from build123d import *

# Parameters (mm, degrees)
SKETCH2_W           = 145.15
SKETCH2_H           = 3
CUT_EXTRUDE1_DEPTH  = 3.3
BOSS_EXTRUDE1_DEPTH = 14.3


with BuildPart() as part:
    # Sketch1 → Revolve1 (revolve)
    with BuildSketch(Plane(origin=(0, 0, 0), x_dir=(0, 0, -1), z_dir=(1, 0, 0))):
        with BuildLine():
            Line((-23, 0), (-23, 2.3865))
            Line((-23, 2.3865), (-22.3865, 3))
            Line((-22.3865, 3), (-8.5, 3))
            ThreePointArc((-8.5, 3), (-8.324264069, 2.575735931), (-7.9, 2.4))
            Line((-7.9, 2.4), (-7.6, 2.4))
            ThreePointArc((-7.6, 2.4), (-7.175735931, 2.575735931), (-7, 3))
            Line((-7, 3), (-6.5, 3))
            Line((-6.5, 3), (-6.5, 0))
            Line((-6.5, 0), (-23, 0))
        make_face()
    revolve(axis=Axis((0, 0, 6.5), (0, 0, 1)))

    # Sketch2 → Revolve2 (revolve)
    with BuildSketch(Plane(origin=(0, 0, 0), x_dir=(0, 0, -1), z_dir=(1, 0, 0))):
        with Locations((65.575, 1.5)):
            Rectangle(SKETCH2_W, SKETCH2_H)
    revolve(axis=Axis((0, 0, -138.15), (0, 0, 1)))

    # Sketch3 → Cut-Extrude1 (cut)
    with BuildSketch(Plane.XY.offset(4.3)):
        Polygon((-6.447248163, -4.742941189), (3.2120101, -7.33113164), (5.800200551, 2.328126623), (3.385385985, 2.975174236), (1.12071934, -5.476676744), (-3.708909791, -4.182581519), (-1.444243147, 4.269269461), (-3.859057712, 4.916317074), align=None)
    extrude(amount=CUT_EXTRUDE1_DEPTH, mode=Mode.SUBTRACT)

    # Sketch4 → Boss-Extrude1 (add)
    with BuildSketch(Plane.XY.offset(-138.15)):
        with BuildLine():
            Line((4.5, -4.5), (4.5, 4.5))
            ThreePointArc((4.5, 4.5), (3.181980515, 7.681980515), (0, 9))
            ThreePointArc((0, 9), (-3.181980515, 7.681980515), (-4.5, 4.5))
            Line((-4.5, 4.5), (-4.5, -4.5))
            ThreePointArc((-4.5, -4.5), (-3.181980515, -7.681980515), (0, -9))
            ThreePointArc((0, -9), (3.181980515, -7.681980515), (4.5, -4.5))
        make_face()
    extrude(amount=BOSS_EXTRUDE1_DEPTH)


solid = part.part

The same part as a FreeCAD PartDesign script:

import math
import FreeCAD as App
import Part
import Sketcher
from FreeCAD import Vector
Q = App.Units.Quantity


def add_polygon(sketch, points):
    """Adds a closed chain of lines whose ends are joined by coincident constraints."""
    first, n = sketch.GeometryCount, len(points)
    for a, b in zip(points, points[1:] + points[:1]):
        sketch.addGeometry(Part.LineSegment(App.Vector(*a, 0), App.Vector(*b, 0)), False)
    for i in range(n):
        sketch.addConstraint(Sketcher.Constraint("Coincident", first + i, 2, first + (i + 1) % n, 1))

doc = App.newDocument("Part")
body = doc.addObject("PartDesign::Body", "Body")

# Sketch on YZ plane
sketch1 = doc.addObject("Sketcher::SketchObject", "Sketch")
body.addObject(sketch1)
sketch1.AttachmentSupport = (doc.YZ_Plane, [""])
sketch1.MapMode = "FlatFace"
sketch1.addGeometry([
    Part.LineSegment(Vector(2.39, 23, 0), Vector(0, 23, 0)),  # 0
    Part.LineSegment(Vector(0, 23, 0), Vector(0, 6.5, 0)),  # 1
    Part.LineSegment(Vector(0, 6.5, 0), Vector(3, 6.5, 0)),  # 2
    Part.LineSegment(Vector(3, 6.5, 0), Vector(3, 7, 0)),  # 3
    Part.ArcOfCircle(Part.Circle(Vector(3, 7.6, 0), Vector(0, 0, 1), 0.6), math.radians(180), math.radians(270)),  # 4
    Part.LineSegment(Vector(2.4, 7.6, 0), Vector(2.4, 7.9, 0)),  # 5
    Part.ArcOfCircle(Part.Circle(Vector(3, 7.9, 0), Vector(0, 0, 1), 0.6), math.radians(90), math.radians(180)),  # 6
    Part.LineSegment(Vector(3, 8.5, 0), Vector(3, 22.39, 0)),  # 7
    Part.LineSegment(Vector(3, 22.39, 0), Vector(2.39, 23, 0)),  # 8
], False)
sketch1.addConstraint([
    Sketcher.Constraint("Coincident", 0, 2, 1, 1),
    Sketcher.Constraint("Coincident", 1, 2, 2, 1),
    Sketcher.Constraint("Coincident", 2, 2, 3, 1),
    Sketcher.Constraint("Coincident", 3, 2, 4, 2),
    Sketcher.Constraint("Tangent", 4, 1, 5, 1),
    Sketcher.Constraint("Tangent", 5, 2, 6, 2),
    Sketcher.Constraint("Coincident", 6, 1, 7, 1),
    Sketcher.Constraint("Coincident", 7, 2, 8, 1),
    Sketcher.Constraint("Coincident", 8, 2, 0, 1),
    Sketcher.Constraint("Horizontal", 0),
    Sketcher.Constraint("Vertical", 1),
    Sketcher.Constraint("Horizontal", 2),
    Sketcher.Constraint("Vertical", 3),
    Sketcher.Constraint("Vertical", 5),
    Sketcher.Constraint("Vertical", 7),
    Sketcher.Constraint("Equal", 4, 6),
    Sketcher.Constraint("PointOnObject", 0, 2, -2),
    Sketcher.Constraint("Vertical", 6, 3, 2, 2),
    Sketcher.Constraint("Vertical", 3, 2, 6, 1),
    Sketcher.Constraint("Radius", 4, Q("0.6 mm")),
    Sketcher.Constraint("DistanceX", 2, 1, 2, 2, Q("3 mm")),
    Sketcher.Constraint("Angle", 8, Q("135 deg")),
    Sketcher.Constraint("DistanceY", 1, 2, 1, 1, Q("16.5 mm")),
    Sketcher.Constraint("DistanceY", 3, 1, 3, 2, Q("0.5 mm")),
    Sketcher.Constraint("DistanceY", 5, 1, 5, 2, Q("0.3 mm")),
    Sketcher.Constraint("DistanceY", -1, 1, 0, 2, Q("23 mm")),
    Sketcher.Constraint("DistanceX", 0, 2, 0, 1, Q("2.3865 mm")),
])
revolution = doc.addObject("PartDesign::Revolution", "Revolution")
body.addObject(revolution)
revolution.Profile = sketch1
revolution.ReferenceAxis = (sketch1, ["V_Axis"])
revolution.Angle = 360

# Sketch on YZ plane
sketch2 = doc.addObject("Sketcher::SketchObject", "Sketch001")
body.addObject(sketch2)
sketch2.AttachmentSupport = (doc.YZ_Plane, [""])
sketch2.MapMode = "FlatFace"
add_polygon(sketch2, [(3, 7), (0, 7), (0, -138.2), (3, -138.2)])  # lines 0-3
sketch2.addConstraint([
    Sketcher.Constraint("Horizontal", 0),
    Sketcher.Constraint("Vertical", 1),
    Sketcher.Constraint("Horizontal", 2),
    Sketcher.Constraint("Vertical", 3),
    Sketcher.Constraint("PointOnObject", 0, 2, -2),
    Sketcher.Constraint("DistanceX", 0, 2, 0, 1, Q("3 mm")),
    Sketcher.Constraint("DistanceY", -1, 1, 0, 2, Q("7 mm")),
    Sketcher.Constraint("DistanceY", 1, 2, 1, 1, Q("145.15 mm")),
])
revolution2 = doc.addObject("PartDesign::Revolution", "Revolution001")
body.addObject(revolution2)
revolution2.Profile = sketch2
revolution2.ReferenceAxis = (sketch2, ["V_Axis"])
revolution2.Angle = 360

# Sketch on XY plane
sketch3 = doc.addObject("Sketcher::SketchObject", "Sketch002")
body.addObject(sketch3)
sketch3.AttachmentSupport = (doc.XY_Plane, [""])
sketch3.MapMode = "FlatFace"
sketch3.AttachmentOffset = App.Placement(Vector(0, 0, 4.3), App.Rotation())
add_polygon(sketch3, [(-6.4, -4.7), (3.2, -7.3), (5.8, 2.3), (3.4, 3), (1.1, -5.5), (-3.7, -4.2), (-1.4, 4.3), (-3.9, 4.9)])  # lines 0-7
sketch3.addConstraint([
    Sketcher.Constraint("Perpendicular", 0, 1),
    Sketcher.Constraint("Perpendicular", 1, 2),
    Sketcher.Constraint("Perpendicular", 2, 3),
    Sketcher.Constraint("Perpendicular", 3, 4),
    Sketcher.Constraint("Perpendicular", 4, 5),
    Sketcher.Constraint("Perpendicular", 5, 6),
    Sketcher.Constraint("Perpendicular", 6, 7),
    Sketcher.Constraint("Equal", 0, 1),
    Sketcher.Constraint("Equal", 3, 5),
    Sketcher.Constraint("Equal", 2, 6),
    Sketcher.Constraint("Angle", 0, Q("-15 deg")),
    Sketcher.Constraint("Distance", 0, Q("10 mm")),
    Sketcher.Constraint("Distance", 4, Q("5 mm")),
    Sketcher.Constraint("Distance", 3, Q("8.75 mm")),
    Sketcher.Constraint("DistanceX", -1, 1, 1, 2, Q("5.800201 mm")),
    Sketcher.Constraint("DistanceY", 0, 2, -1, 1, Q("7.331132 mm")),
])
pocket1 = doc.addObject("PartDesign::Pocket", "Pocket")
body.addObject(pocket1)
pocket1.Profile = sketch3
pocket1.Length = 3.3
pocket1.Reversed = True

# Sketch on XY plane
sketch4 = doc.addObject("Sketcher::SketchObject", "Sketch003")
body.addObject(sketch4)
sketch4.AttachmentSupport = (doc.XY_Plane, [""])
sketch4.MapMode = "FlatFace"
sketch4.AttachmentOffset = App.Placement(Vector(0, 0, -138.15), App.Rotation())
sketch4.addGeometry([
    Part.LineSegment(Vector(4.5, -4.5, 0), Vector(4.5, 4.5, 0)),  # 0
    Part.ArcOfCircle(Part.Circle(Vector(0, 4.5, 0), Vector(0, 0, 1), 4.5), math.radians(0), math.radians(90)),  # 1
    Part.ArcOfCircle(Part.Circle(Vector(0, 4.5, 0), Vector(0, 0, 1), 4.5), math.radians(90), math.radians(180)),  # 2
    Part.LineSegment(Vector(-4.5, 4.5, 0), Vector(-4.5, -4.5, 0)),  # 3
    Part.ArcOfCircle(Part.Circle(Vector(0, -4.5, 0), Vector(0, 0, 1), 4.5), math.radians(-180), math.radians(-90)),  # 4
    Part.ArcOfCircle(Part.Circle(Vector(0, -4.5, 0), Vector(0, 0, 1), 4.5), math.radians(-90), math.radians(0)),  # 5
], False)
sketch4.addConstraint([
    Sketcher.Constraint("Tangent", 0, 2, 1, 1),
    Sketcher.Constraint("Tangent", 1, 2, 2, 1),
    Sketcher.Constraint("Tangent", 2, 2, 3, 1),
    Sketcher.Constraint("Tangent", 3, 2, 4, 1),
    Sketcher.Constraint("Tangent", 4, 2, 5, 1),
    Sketcher.Constraint("Tangent", 5, 2, 0, 1),
    Sketcher.Constraint("Vertical", 0),
    Sketcher.Constraint("Vertical", 3),
    Sketcher.Constraint("Equal", 1, 2),
    Sketcher.Constraint("Equal", 2, 4),
    Sketcher.Constraint("Symmetric", 1, 3, 4, 3, -1, 1),
    Sketcher.Constraint("PointOnObject", 1, 2, -2),
    Sketcher.Constraint("PointOnObject", 4, 2, -2),
    Sketcher.Constraint("Radius", 1, Q("4.5 mm")),
    Sketcher.Constraint("DistanceY", 0, 1, 0, 2, Q("9 mm")),
])
pad1 = doc.addObject("PartDesign::Pad", "Pad")
body.addObject(pad1)
pad1.Profile = sketch4
pad1.Length = 14.3

doc.recompute()
